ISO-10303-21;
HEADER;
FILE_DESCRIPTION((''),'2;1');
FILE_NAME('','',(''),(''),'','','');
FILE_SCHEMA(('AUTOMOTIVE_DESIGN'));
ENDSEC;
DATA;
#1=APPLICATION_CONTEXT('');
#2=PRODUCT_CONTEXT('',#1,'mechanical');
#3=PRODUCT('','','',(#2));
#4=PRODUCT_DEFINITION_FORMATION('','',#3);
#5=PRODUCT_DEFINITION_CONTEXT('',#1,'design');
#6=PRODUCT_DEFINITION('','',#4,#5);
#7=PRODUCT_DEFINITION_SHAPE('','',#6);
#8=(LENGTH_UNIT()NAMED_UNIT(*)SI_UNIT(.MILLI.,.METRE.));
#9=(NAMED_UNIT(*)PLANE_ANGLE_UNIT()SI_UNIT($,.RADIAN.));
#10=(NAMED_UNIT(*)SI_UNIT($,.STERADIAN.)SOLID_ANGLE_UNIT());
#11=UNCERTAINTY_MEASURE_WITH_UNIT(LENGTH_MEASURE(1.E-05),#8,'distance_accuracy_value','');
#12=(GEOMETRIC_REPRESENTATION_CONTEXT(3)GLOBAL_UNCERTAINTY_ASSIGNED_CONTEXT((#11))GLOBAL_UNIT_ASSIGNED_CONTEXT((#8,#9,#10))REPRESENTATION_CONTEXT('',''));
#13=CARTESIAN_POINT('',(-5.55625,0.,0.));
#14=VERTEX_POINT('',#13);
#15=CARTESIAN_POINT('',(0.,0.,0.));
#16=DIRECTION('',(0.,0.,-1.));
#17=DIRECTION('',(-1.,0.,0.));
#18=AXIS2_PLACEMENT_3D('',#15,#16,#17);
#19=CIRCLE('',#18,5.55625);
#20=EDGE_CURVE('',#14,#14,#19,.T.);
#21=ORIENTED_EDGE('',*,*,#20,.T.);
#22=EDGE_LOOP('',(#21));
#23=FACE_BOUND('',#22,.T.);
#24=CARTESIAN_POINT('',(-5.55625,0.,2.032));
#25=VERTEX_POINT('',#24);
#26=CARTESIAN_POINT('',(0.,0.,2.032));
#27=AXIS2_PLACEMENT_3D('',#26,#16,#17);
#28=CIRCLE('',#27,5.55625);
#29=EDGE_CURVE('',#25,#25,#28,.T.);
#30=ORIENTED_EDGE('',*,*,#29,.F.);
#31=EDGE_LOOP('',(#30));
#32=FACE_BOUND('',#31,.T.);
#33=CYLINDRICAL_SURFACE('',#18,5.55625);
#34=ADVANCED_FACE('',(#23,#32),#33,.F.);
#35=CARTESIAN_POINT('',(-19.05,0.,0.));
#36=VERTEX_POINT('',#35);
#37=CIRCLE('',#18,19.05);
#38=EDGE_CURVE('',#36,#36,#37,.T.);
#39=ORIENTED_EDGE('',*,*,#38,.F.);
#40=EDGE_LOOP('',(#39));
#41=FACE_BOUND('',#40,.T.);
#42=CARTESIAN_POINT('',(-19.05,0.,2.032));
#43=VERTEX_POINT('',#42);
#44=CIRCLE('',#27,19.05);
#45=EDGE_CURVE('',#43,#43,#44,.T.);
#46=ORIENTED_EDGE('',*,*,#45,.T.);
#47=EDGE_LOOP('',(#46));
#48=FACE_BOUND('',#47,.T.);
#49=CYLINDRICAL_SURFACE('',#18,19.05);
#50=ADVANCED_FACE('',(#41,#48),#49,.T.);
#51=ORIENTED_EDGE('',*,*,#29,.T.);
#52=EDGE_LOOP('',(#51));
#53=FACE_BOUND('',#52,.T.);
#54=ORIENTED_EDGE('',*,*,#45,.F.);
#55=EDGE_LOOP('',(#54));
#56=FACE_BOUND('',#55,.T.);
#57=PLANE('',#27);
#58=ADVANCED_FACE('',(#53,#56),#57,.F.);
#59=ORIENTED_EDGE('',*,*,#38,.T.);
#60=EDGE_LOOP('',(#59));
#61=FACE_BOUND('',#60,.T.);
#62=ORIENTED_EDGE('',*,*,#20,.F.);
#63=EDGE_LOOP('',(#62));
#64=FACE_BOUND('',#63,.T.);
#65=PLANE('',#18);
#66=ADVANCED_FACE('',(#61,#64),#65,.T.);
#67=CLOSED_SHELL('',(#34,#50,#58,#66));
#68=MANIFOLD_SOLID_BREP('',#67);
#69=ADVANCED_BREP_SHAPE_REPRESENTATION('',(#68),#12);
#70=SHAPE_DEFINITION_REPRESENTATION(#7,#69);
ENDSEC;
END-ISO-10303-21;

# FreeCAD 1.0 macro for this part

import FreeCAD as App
import Part
import Sketcher
Q = App.Units.Quantity

doc = App.newDocument("Part")
body = doc.addObject("PartDesign::Body", "Body")

# Sketch on YZ plane
sketch1 = body.newObject("Sketcher::SketchObject", "Sketch")
sketch1.AttachmentSupport = (doc.getObject("YZ_Plane"), [""])
sketch1.MapMode = "FlatFace"
sketch1.addGeometry([
    Part.LineSegment(App.Vector(19.05, 2.032, 0), App.Vector(5.55625, 2.032, 0)),
    Part.LineSegment(App.Vector(5.55625, 2.032, 0), App.Vector(5.55625, 0, 0)),
    Part.LineSegment(App.Vector(5.55625, 0, 0), App.Vector(19.05, 0, 0)),
    Part.LineSegment(App.Vector(19.05, 0, 0), App.Vector(19.05, 2.032, 0)),
], False)
sketch1.addConstraint([
    Sketcher.Constraint("Coincident", 0, 2, 1, 1),
    Sketcher.Constraint("Coincident", 1, 2, 2, 1),
    Sketcher.Constraint("Coincident", 2, 2, 3, 1),
    Sketcher.Constraint("Coincident", 3, 2, 0, 1),
    Sketcher.Constraint("Horizontal", 0),
    Sketcher.Constraint("Vertical", 1),
    Sketcher.Constraint("Horizontal", 2),
    Sketcher.Constraint("Vertical", 3),
    Sketcher.Constraint("PointOnObject", 1, 2, -1),
    Sketcher.Constraint("DistanceY", 1, 2, 1, 1, Q("0.08 in")),
    Sketcher.Constraint("DistanceX", 0, 2, 0, 1, Q("0.53125 in")),
    Sketcher.Constraint("DistanceX", -1, 1, 2, 2, Q("0.75 in")),
])
revolution = body.newObject("PartDesign::Revolution", "Revolution")
revolution.Profile = sketch1
revolution.ReferenceAxis = (sketch1, ["V_Axis"])
revolution.Angle = 360

doc.recompute()
